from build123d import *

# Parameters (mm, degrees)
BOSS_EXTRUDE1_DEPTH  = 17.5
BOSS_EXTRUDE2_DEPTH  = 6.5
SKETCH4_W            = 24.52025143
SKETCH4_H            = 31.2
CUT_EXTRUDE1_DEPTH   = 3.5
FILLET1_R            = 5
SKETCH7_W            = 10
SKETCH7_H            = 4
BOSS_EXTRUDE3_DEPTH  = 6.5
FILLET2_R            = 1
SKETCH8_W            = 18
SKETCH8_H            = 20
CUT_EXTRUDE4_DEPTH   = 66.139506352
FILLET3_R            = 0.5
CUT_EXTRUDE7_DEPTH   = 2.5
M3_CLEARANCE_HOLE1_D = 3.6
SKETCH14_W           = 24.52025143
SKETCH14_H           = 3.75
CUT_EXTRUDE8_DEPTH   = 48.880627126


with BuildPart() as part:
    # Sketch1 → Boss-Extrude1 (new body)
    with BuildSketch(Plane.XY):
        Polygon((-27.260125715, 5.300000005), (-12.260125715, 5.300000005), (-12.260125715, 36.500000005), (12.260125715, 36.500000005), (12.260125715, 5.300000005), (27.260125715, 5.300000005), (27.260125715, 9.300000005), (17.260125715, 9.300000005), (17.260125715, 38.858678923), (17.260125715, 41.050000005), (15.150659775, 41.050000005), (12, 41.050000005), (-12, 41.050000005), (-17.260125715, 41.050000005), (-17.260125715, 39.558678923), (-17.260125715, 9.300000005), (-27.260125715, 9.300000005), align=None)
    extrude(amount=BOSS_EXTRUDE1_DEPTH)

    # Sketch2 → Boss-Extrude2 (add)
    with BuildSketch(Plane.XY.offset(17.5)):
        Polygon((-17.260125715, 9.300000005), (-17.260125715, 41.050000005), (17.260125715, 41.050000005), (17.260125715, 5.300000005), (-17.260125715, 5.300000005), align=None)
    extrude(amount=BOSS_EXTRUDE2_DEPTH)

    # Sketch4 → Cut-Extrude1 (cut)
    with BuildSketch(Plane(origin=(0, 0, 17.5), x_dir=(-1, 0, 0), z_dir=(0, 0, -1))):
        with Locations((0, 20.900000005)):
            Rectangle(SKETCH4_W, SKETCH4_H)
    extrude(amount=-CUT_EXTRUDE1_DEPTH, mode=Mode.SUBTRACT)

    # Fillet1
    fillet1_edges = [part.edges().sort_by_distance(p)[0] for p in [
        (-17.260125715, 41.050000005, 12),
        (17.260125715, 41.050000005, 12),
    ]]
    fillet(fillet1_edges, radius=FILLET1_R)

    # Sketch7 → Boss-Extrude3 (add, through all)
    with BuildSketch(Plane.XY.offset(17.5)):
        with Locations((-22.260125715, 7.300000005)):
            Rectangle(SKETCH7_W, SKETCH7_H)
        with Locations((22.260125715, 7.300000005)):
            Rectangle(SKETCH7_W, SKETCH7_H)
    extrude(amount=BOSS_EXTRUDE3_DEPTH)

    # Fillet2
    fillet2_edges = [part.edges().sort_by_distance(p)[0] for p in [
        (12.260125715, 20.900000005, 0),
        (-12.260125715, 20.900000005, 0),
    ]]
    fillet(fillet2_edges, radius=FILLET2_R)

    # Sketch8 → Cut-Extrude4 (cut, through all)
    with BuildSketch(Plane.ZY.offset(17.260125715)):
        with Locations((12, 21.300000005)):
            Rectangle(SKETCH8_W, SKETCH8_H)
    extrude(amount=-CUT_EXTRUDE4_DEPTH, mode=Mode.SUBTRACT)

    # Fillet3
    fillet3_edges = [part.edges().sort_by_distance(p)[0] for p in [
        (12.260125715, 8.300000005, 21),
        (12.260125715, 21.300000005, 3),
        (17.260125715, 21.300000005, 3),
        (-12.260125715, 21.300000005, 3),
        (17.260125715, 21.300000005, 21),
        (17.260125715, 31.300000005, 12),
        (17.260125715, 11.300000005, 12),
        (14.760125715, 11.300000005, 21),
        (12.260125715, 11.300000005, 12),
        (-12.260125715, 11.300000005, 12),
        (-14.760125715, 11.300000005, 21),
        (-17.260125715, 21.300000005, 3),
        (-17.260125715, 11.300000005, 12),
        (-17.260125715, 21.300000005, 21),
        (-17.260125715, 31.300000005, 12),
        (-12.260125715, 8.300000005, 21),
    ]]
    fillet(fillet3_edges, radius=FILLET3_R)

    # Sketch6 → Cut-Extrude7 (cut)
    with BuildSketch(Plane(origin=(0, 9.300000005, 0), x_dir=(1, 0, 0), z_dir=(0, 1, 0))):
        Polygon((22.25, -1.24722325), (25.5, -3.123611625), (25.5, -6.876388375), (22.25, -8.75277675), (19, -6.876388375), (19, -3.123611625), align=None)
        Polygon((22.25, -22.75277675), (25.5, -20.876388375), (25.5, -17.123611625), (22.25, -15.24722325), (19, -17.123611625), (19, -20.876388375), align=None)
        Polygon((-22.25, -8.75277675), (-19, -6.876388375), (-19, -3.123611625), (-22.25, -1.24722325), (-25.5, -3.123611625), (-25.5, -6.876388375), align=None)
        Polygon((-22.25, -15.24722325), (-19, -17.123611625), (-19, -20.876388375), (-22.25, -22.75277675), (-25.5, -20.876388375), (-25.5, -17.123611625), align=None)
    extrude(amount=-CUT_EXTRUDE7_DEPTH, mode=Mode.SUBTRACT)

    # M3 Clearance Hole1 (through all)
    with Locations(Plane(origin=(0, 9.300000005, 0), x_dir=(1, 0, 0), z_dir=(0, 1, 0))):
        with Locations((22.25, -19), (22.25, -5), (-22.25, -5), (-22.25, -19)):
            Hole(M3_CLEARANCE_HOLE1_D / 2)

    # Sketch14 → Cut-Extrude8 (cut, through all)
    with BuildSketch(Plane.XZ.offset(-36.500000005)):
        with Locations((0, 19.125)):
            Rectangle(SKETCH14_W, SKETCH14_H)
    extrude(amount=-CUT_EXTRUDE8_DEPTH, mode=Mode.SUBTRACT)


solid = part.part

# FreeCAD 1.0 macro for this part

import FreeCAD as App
import Part
import Sketcher
Q = App.Units.Quantity


def edges_at(feature, points):
    """Names of the edges that pass closest to the given points."""
    edges = feature.Shape.Edges
    near = lambda p: min(range(len(edges)), key=lambda i: edges[i].distToShape(Part.Vertex(*p))[0])
    return sorted({f"Edge{near(p) + 1}" for p in points})

doc = App.newDocument("Part")
params = doc.addObject("Spreadsheet::Sheet", "Params")
for row, (alias, value) in enumerate([
    ("sketch1_width", "15 mm"),
    ("sketch1_width2", "10 mm"),
    ("sketch1_height", "4 mm"),
    ("sketch1_height2", "31.2 mm"),
    ("sketch1_height3", "31.75 mm"),
    ("pad1_length", "17.5 mm"),
    ("sketch2_height", "35.75 mm"),
    ("pad2_length", "6.5 mm"),
    ("sketch3_height", "31.2 mm"),
    ("pocket1_length", "3.5 mm"),
    ("fillet_radius", "5 mm"),
    ("sketch4_width", "10 mm"),
    ("sketch4_height", "4 mm"),
    ("fillet2_radius", "1 mm"),
    ("sketch5_width", "20 mm"),
    ("sketch5_height", "18 mm"),
    ("fillet3_radius", "0.5 mm"),
    ("pocket3_length", "2.5 mm"),
    ("sketch7_diameter", "3.6 mm"),
    ("hole_diameter", "3.6 mm"),
    ("sketch8_height", "3.75 mm"),
], start=1):
    params.set(f"A{row}", alias)
    params.set(f"B{row}", "=" + value)
    params.setAlias(f"B{row}", alias)

body = doc.addObject("PartDesign::Body", "Body")

# Sketch on XY plane
sketch1 = doc.addObject("Sketcher::SketchObject", "Sketch")
body.addObject(sketch1)
sketch1.AttachmentSupport = (doc.XY_Plane, [""])
sketch1.MapMode = "FlatFace"
sketch1.addGeometry([
    Part.LineSegment(App.Vector(-27.3, 5.3, 0), App.Vector(-12.3, 5.3, 0)),  # 0
    Part.LineSegment(App.Vector(-12.3, 5.3, 0), App.Vector(-12.3, 36.5, 0)),  # 1
    Part.LineSegment(App.Vector(-12.3, 36.5, 0), App.Vector(12.3, 36.5, 0)),  # 2
    Part.LineSegment(App.Vector(12.3, 36.5, 0), App.Vector(12.3, 5.3, 0)),  # 3
    Part.LineSegment(App.Vector(12.3, 5.3, 0), App.Vector(27.3, 5.3, 0)),  # 4
    Part.LineSegment(App.Vector(27.3, 5.3, 0), App.Vector(27.3, 9.3, 0)),  # 5
    Part.LineSegment(App.Vector(27.3, 9.3, 0), App.Vector(17.3, 9.3, 0)),  # 6
    Part.LineSegment(App.Vector(17.3, 9.3, 0), App.Vector(17.3, 41.1, 0)),  # 7
    Part.LineSegment(App.Vector(17.3, 41.1, 0), App.Vector(-17.3, 41.1, 0)),  # 8
    Part.LineSegment(App.Vector(-17.3, 41.1, 0), App.Vector(-17.3, 9.3, 0)),  # 9
    Part.LineSegment(App.Vector(-17.3, 9.3, 0), App.Vector(-27.3, 9.3, 0)),  # 10
    Part.LineSegment(App.Vector(-27.3, 9.3, 0), App.Vector(-27.3, 5.3, 0)),  # 11
], False)
sketch1.addConstraint([
    Sketcher.Constraint("Coincident", 0, 2, 1, 1),
    Sketcher.Constraint("Coincident", 1, 2, 2, 1),
    Sketcher.Constraint("Coincident", 2, 2, 3, 1),
    Sketcher.Constraint("Coincident", 3, 2, 4, 1),
    Sketcher.Constraint("Coincident", 4, 2, 5, 1),
    Sketcher.Constraint("Coincident", 5, 2, 6, 1),
    Sketcher.Constraint("Coincident", 6, 2, 7, 1),
    Sketcher.Constraint("Coincident", 7, 2, 8, 1),
    Sketcher.Constraint("Coincident", 8, 2, 9, 1),
    Sketcher.Constraint("Coincident", 9, 2, 10, 1),
    Sketcher.Constraint("Coincident", 10, 2, 11, 1),
    Sketcher.Constraint("Coincident", 11, 2, 0, 1),
    Sketcher.Constraint("Horizontal", 0),
    Sketcher.Constraint("Vertical", 1),
    Sketcher.Constraint("Horizontal", 2),
    Sketcher.Constraint("Vertical", 3),
    Sketcher.Constraint("Horizontal", 4),
    Sketcher.Constraint("Vertical", 5),
    Sketcher.Constraint("Horizontal", 6),
    Sketcher.Constraint("Vertical", 7),
    Sketcher.Constraint("Horizontal", 8),
    Sketcher.Constraint("Vertical", 9),
    Sketcher.Constraint("Horizontal", 10),
    Sketcher.Constraint("Vertical", 11),
    Sketcher.Constraint("Symmetric", 0, 2, 3, 2, -2),
    Sketcher.Constraint("Symmetric", 6, 2, 9, 2, -2),
    Sketcher.Constraint("Equal", 0, 4),
    Sketcher.Constraint("DistanceX", 0, 1, 0, 2, 15.0),
    Sketcher.Constraint("DistanceX", 6, 2, 6, 1, 10.0),
    Sketcher.Constraint("DistanceY", 5, 1, 5, 2, 4.0),
    Sketcher.Constraint("DistanceY", 1, 1, 1, 2, 31.2),
    Sketcher.Constraint("DistanceY", 7, 1, 7, 2, 31.75),
    Sketcher.Constraint("DistanceY", -1, 1, 0, 2, 5.3),
    Sketcher.Constraint("DistanceX", 2, 1, 2, 2, 24.520251),
])
sketch1.setExpression("Constraints[27]", "Params.sketch1_width")
sketch1.setExpression("Constraints[28]", "Params.sketch1_width2")
sketch1.setExpression("Constraints[29]", "Params.sketch1_height")
sketch1.setExpression("Constraints[30]", "Params.sketch1_height2")
sketch1.setExpression("Constraints[31]", "Params.sketch1_height3")
pad1 = doc.addObject("PartDesign::Pad", "Pad")
body.addObject(pad1)
pad1.Profile = sketch1
pad1.setExpression("Length", "Params.pad1_length")

# Sketch on XY plane
sketch2 = doc.addObject("Sketcher::SketchObject", "Sketch001")
body.addObject(sketch2)
sketch2.AttachmentSupport = (doc.XY_Plane, [""])
sketch2.MapMode = "FlatFace"
sketch2.AttachmentOffset = App.Placement(App.Vector(0, 0, 17.5), App.Rotation())
sketch2.addGeometry([
    Part.LineSegment(App.Vector(-17, 41, 0), App.Vector(-17, 5, 0)),
    Part.LineSegment(App.Vector(-17, 5, 0), App.Vector(17, 5, 0)),
    Part.LineSegment(App.Vector(17, 5, 0), App.Vector(17, 41, 0)),
    Part.LineSegment(App.Vector(17, 41, 0), App.Vector(-17, 41, 0)),
], False)
sketch2.addConstraint([
    Sketcher.Constraint("Coincident", 0, 2, 1, 1),
    Sketcher.Constraint("Coincident", 1, 2, 2, 1),
    Sketcher.Constraint("Coincident", 2, 2, 3, 1),
    Sketcher.Constraint("Coincident", 3, 2, 0, 1),
    Sketcher.Constraint("Vertical", 0),
    Sketcher.Constraint("Horizontal", 1),
    Sketcher.Constraint("Vertical", 2),
    Sketcher.Constraint("Horizontal", 3),
    Sketcher.Constraint("DistanceY", 0, 2, 0, 1, 35.75),
    Sketcher.Constraint("DistanceY", -1, 1, 0, 2, 5.3),
    Sketcher.Constraint("DistanceX", 1, 1, 1, 2, 34.520251),
    Sketcher.Constraint("DistanceX", 0, 2, -1, 1, 17.260126),
])
sketch2.setExpression("Constraints[8]", "Params.sketch2_height")
pad2 = doc.addObject("PartDesign::Pad", "Pad001")
body.addObject(pad2)
pad2.Profile = sketch2
pad2.setExpression("Length", "Params.pad2_length")

# Sketch on XY plane
sketch3 = doc.addObject("Sketcher::SketchObject", "Sketch002")
body.addObject(sketch3)
sketch3.AttachmentSupport = (doc.XY_Plane, [""])
sketch3.MapMode = "FlatFace"
sketch3.AttachmentOffset = App.Placement(App.Vector(0, 0, 17.5), App.Rotation())
sketch3.addGeometry([
    Part.LineSegment(App.Vector(12, 37, 0), App.Vector(12, 5, 0)),
    Part.LineSegment(App.Vector(12, 5, 0), App.Vector(-12, 5, 0)),
    Part.LineSegment(App.Vector(-12, 5, 0), App.Vector(-12, 37, 0)),
    Part.LineSegment(App.Vector(-12, 37, 0), App.Vector(12, 37, 0)),
], False)
sketch3.addConstraint([
    Sketcher.Constraint("Coincident", 0, 2, 1, 1),
    Sketcher.Constraint("Coincident", 1, 2, 2, 1),
    Sketcher.Constraint("Coincident", 2, 2, 3, 1),
    Sketcher.Constraint("Coincident", 3, 2, 0, 1),
    Sketcher.Constraint("Vertical", 0),
    Sketcher.Constraint("Horizontal", 1),
    Sketcher.Constraint("Vertical", 2),
    Sketcher.Constraint("Horizontal", 3),
    Sketcher.Constraint("DistanceY", 0, 2, 0, 1, 31.2),
    Sketcher.Constraint("DistanceY", -1, 1, 0, 2, 5.3),
    Sketcher.Constraint("DistanceX", 1, 2, 1, 1, 24.520251),
    Sketcher.Constraint("DistanceX", -1, 1, 0, 2, 12.260126),
])
sketch3.setExpression("Constraints[8]", "Params.sketch3_height")
pocket1 = doc.addObject("PartDesign::Pocket", "Pocket")
body.addObject(pocket1)
pocket1.Profile = sketch3
pocket1.setExpression("Length", "Params.pocket1_length")
pocket1.Reversed = True
doc.recompute()

fillet = doc.addObject("PartDesign::Fillet", "Fillet")
body.addObject(fillet)
fillet.Base = (pocket1, edges_at(pocket1, [(-17.26, 41.05, 12), (17.26, 41.05, 12)]))
fillet.setExpression("Radius", "Params.fillet_radius")

# Sketch on XY plane
sketch4 = doc.addObject("Sketcher::SketchObject", "Sketch003")
body.addObject(sketch4)
sketch4.AttachmentSupport = (doc.XY_Plane, [""])
sketch4.MapMode = "FlatFace"
sketch4.AttachmentOffset = App.Placement(App.Vector(0, 0, 17.5), App.Rotation())
sketch4.addGeometry([
    Part.LineSegment(App.Vector(-27.3, 9.3, 0), App.Vector(-27.3, 5.3, 0)),  # 0
    Part.LineSegment(App.Vector(-27.3, 5.3, 0), App.Vector(-17.3, 5.3, 0)),  # 1
    Part.LineSegment(App.Vector(-17.3, 5.3, 0), App.Vector(-17.3, 9.3, 0)),  # 2
    Part.LineSegment(App.Vector(-17.3, 9.3, 0), App.Vector(-27.3, 9.3, 0)),  # 3
    Part.LineSegment(App.Vector(17.3, 9.3, 0), App.Vector(17.3, 5.3, 0)),  # 4
    Part.LineSegment(App.Vector(17.3, 5.3, 0), App.Vector(27.3, 5.3, 0)),  # 5
    Part.LineSegment(App.Vector(27.3, 5.3, 0), App.Vector(27.3, 9.3, 0)),  # 6
    Part.LineSegment(App.Vector(27.3, 9.3, 0), App.Vector(17.3, 9.3, 0)),  # 7
], False)
sketch4.addConstraint([
    Sketcher.Constraint("Coincident", 0, 2, 1, 1),
    Sketcher.Constraint("Coincident", 1, 2, 2, 1),
    Sketcher.Constraint("Coincident", 2, 2, 3, 1),
    Sketcher.Constraint("Coincident", 3, 2, 0, 1),
    Sketcher.Constraint("Coincident", 4, 2, 5, 1),
    Sketcher.Constraint("Coincident", 5, 2, 6, 1),
    Sketcher.Constraint("Coincident", 6, 2, 7, 1),
    Sketcher.Constraint("Coincident", 7, 2, 4, 1),
    Sketcher.Constraint("Vertical", 0),
    Sketcher.Constraint("Horizontal", 1),
    Sketcher.Constraint("Vertical", 2),
    Sketcher.Constraint("Horizontal", 3),
    Sketcher.Constraint("Vertical", 4),
    Sketcher.Constraint("Horizontal", 5),
    Sketcher.Constraint("Vertical", 6),
    Sketcher.Constraint("Horizontal", 7),
    Sketcher.Constraint("Symmetric", 1, 2, 4, 2, -2),
    Sketcher.Constraint("Symmetric", 3, 2, 6, 2, -2),
    Sketcher.Constraint("DistanceX", 1, 1, 1, 2, 10.0),
    Sketcher.Constraint("DistanceY", 0, 2, 0, 1, 4.0),
    Sketcher.Constraint("DistanceY", -1, 1, 0, 2, 5.3),
    Sketcher.Constraint("DistanceX", 1, 2, 4, 2, 34.520251),
])
sketch4.setExpression("Constraints[18]", "Params.sketch4_width")
sketch4.setExpression("Constraints[19]", "Params.sketch4_height")
pad3 = doc.addObject("PartDesign::Pad", "Pad002")
body.addObject(pad3)
pad3.Profile = sketch4
pad3.Type = "UpToLast"
doc.recompute()

fillet2 = doc.addObject("PartDesign::Fillet", "Fillet001")
body.addObject(fillet2)
fillet2.Base = (pad3, edges_at(pad3, [(12.26, 20.9, 0), (-12.26, 20.9, 0)]))
fillet2.setExpression("Radius", "Params.fillet2_radius")

# Sketch on YZ plane
sketch5 = doc.addObject("Sketcher::SketchObject", "Sketch004")
body.addObject(sketch5)
sketch5.AttachmentSupport = (doc.YZ_Plane, [""])
sketch5.MapMode = "FlatFace"
sketch5.AttachmentOffset = App.Placement(App.Vector(0, 0, -17.260126), App.Rotation())
sketch5.addGeometry([
    Part.LineSegment(App.Vector(31, 3, 0), App.Vector(11, 3, 0)),
    Part.LineSegment(App.Vector(11, 3, 0), App.Vector(11, 21, 0)),
    Part.LineSegment(App.Vector(11, 21, 0), App.Vector(31, 21, 0)),
    Part.LineSegment(App.Vector(31, 21, 0), App.Vector(31, 3, 0)),
], False)
sketch5.addConstraint([
    Sketcher.Constraint("Coincident", 0, 2, 1, 1),
    Sketcher.Constraint("Coincident", 1, 2, 2, 1),
    Sketcher.Constraint("Coincident", 2, 2, 3, 1),
    Sketcher.Constraint("Coincident", 3, 2, 0, 1),
    Sketcher.Constraint("Horizontal", 0),
    Sketcher.Constraint("Vertical", 1),
    Sketcher.Constraint("Horizontal", 2),
    Sketcher.Constraint("Vertical", 3),
    Sketcher.Constraint("DistanceX", 0, 2, 0, 1, 20.0),
    Sketcher.Constraint("DistanceY", 1, 1, 1, 2, 18.0),
    Sketcher.Constraint("DistanceY", -1, 1, 0, 2, 3.0),
    Sketcher.Constraint("DistanceX", -1, 1, 0, 2, 11.3),
])
sketch5.setExpression("Constraints[8]", "Params.sketch5_width")
sketch5.setExpression("Constraints[9]", "Params.sketch5_height")
pocket2 = doc.addObject("PartDesign::Pocket", "Pocket001")
body.addObject(pocket2)
pocket2.Profile = sketch5
pocket2.Type = "ThroughAll"
pocket2.Reversed = True
doc.recompute()

fillet3 = doc.addObject("PartDesign::Fillet", "Fillet002")
body.addObject(fillet3)
fillet3.Base = (pocket2, edges_at(pocket2, [
    (12.26, 8.3, 21),
    (12.26, 21.3, 3),
    (17.26, 21.3, 3),
    (-12.26, 21.3, 3),
    (17.26, 21.3, 21),
    (17.26, 31.3, 12),
    (17.26, 11.3, 12),
    (14.76, 11.3, 21),
    (12.26, 11.3, 12),
    (-12.26, 11.3, 12),
    (-14.76, 11.3, 21),
    (-17.26, 21.3, 3),
    (-17.26, 11.3, 12),
    (-17.26, 21.3, 21),
    (-17.26, 31.3, 12),
    (-12.26, 8.3, 21),
]))
fillet3.setExpression("Radius", "Params.fillet3_radius")

# Sketch on XZ plane
sketch6 = doc.addObject("Sketcher::SketchObject", "Sketch005")
body.addObject(sketch6)
sketch6.AttachmentSupport = (doc.XZ_Plane, [""])
sketch6.MapMode = "FlatFace"
sketch6.AttachmentOffset = App.Placement(App.Vector(0, 0, -9.3), App.Rotation())
sketch6.addGeometry([
    Part.LineSegment(App.Vector(25.5, 3.1, 0), App.Vector(22.2, 1.2, 0)),  # 0
    Part.LineSegment(App.Vector(22.2, 1.2, 0), App.Vector(19, 3.1, 0)),  # 1
    Part.LineSegment(App.Vector(19, 3.1, 0), App.Vector(19, 6.9, 0)),  # 2
    Part.LineSegment(App.Vector(19, 6.9, 0), App.Vector(22.2, 8.8, 0)),  # 3
    Part.LineSegment(App.Vector(22.2, 8.8, 0), App.Vector(25.5, 6.9, 0)),  # 4
    Part.LineSegment(App.Vector(25.5, 6.9, 0), App.Vector(25.5, 3.1, 0)),  # 5
    Part.LineSegment(App.Vector(22.2, 22.8, 0), App.Vector(25.5, 20.9, 0)),  # 6
    Part.LineSegment(App.Vector(25.5, 20.9, 0), App.Vector(25.5, 17.1, 0)),  # 7
    Part.LineSegment(App.Vector(25.5, 17.1, 0), App.Vector(22.2, 15.2, 0)),  # 8
    Part.LineSegment(App.Vector(22.2, 15.2, 0), App.Vector(19, 17.1, 0)),  # 9
    Part.LineSegment(App.Vector(19, 17.1, 0), App.Vector(19, 20.9, 0)),  # 10
    Part.LineSegment(App.Vector(19, 20.9, 0), App.Vector(22.2, 22.8, 0)),  # 11
    Part.LineSegment(App.Vector(-22.2, 8.8, 0), App.Vector(-19, 6.9, 0)),  # 12
    Part.LineSegment(App.Vector(-19, 6.9, 0), App.Vector(-19, 3.1, 0)),  # 13
    Part.LineSegment(App.Vector(-19, 3.1, 0), App.Vector(-22.2, 1.2, 0)),  # 14
    Part.LineSegment(App.Vector(-22.2, 1.2, 0), App.Vector(-25.5, 3.1, 0)),  # 15
    Part.LineSegment(App.Vector(-25.5, 3.1, 0), App.Vector(-25.5, 6.9, 0)),  # 16
    Part.LineSegment(App.Vector(-25.5, 6.9, 0), App.Vector(-22.2, 8.8, 0)),  # 17
    Part.LineSegment(App.Vector(-19, 17.1, 0), App.Vector(-22.2, 15.2, 0)),  # 18
    Part.LineSegment(App.Vector(-22.2, 15.2, 0), App.Vector(-25.5, 17.1, 0)),  # 19
    Part.LineSegment(App.Vector(-25.5, 17.1, 0), App.Vector(-25.5, 20.9, 0)),  # 20
    Part.LineSegment(App.Vector(-25.5, 20.9, 0), App.Vector(-22.2, 22.8, 0)),  # 21
    Part.LineSegment(App.Vector(-22.2, 22.8, 0), App.Vector(-19, 20.9, 0)),  # 22
    Part.LineSegment(App.Vector(-19, 20.9, 0), App.Vector(-19, 17.1, 0)),  # 23
], False)
sketch6.addConstraint([
    Sketcher.Constraint("Coincident", 0, 2, 1, 1),
    Sketcher.Constraint("Coincident", 1, 2, 2, 1),
    Sketcher.Constraint("Coincident", 2, 2, 3, 1),
    Sketcher.Constraint("Coincident", 3, 2, 4, 1),
    Sketcher.Constraint("Coincident", 4, 2, 5, 1),
    Sketcher.Constraint("Coincident", 5, 2, 0, 1),
    Sketcher.Constraint("Coincident", 6, 2, 7, 1),
    Sketcher.Constraint("Coincident", 7, 2, 8, 1),
    Sketcher.Constraint("Coincident", 8, 2, 9, 1),
    Sketcher.Constraint("Coincident", 9, 2, 10, 1),
    Sketcher.Constraint("Coincident", 10, 2, 11, 1),
    Sketcher.Constraint("Coincident", 11, 2, 6, 1),
    Sketcher.Constraint("Coincident", 12, 2, 13, 1),
    Sketcher.Constraint("Coincident", 13, 2, 14, 1),
    Sketcher.Constraint("Coincident", 14, 2, 15, 1),
    Sketcher.Constraint("Coincident", 15, 2, 16, 1),
    Sketcher.Constraint("Coincident", 16, 2, 17, 1),
    Sketcher.Constraint("Coincident", 17, 2, 12, 1),
    Sketcher.Constraint("Coincident", 18, 2, 19, 1),
    Sketcher.Constraint("Coincident", 19, 2, 20, 1),
    Sketcher.Constraint("Coincident", 20, 2, 21, 1),
    Sketcher.Constraint("Coincident", 21, 2, 22, 1),
    Sketcher.Constraint("Coincident", 22, 2, 23, 1),
    Sketcher.Constraint("Coincident", 23, 2, 18, 1),
    Sketcher.Constraint("Vertical", 2),
    Sketcher.Constraint("Vertical", 5),
    Sketcher.Constraint("Vertical", 7),
    Sketcher.Constraint("Vertical", 10),
    Sketcher.Constraint("Vertical", 13),
    Sketcher.Constraint("Vertical", 16),
    Sketcher.Constraint("Vertical", 20),
    Sketcher.Constraint("Vertical", 23),
    Sketcher.Constraint("Symmetric", 2, 2, 12, 2, -2),
    Sketcher.Constraint("Symmetric", 0, 2, 14, 2, -2),
    Sketcher.Constraint("Symmetric", 5, 2, 15, 2, -2),
    Sketcher.Constraint("Symmetric", 3, 2, 17, 2, -2),
    Sketcher.Constraint("Symmetric", 8, 2, 18, 2, -2),
    Sketcher.Constraint("Symmetric", 7, 2, 19, 2, -2),
    Sketcher.Constraint("Symmetric", 11, 2, 21, 2, -2),
    Sketcher.Constraint("Symmetric", 10, 2, 22, 2, -2),
    Sketcher.Constraint("Parallel", 0, 3),
    Sketcher.Constraint("Parallel", 1, 4),
    Sketcher.Constraint("Parallel", 4, 6),
    Sketcher.Constraint("Parallel", 3, 8),
    Sketcher.Constraint("Parallel", 6, 9),
    Sketcher.Constraint("Parallel", 8, 11),
    Sketcher.Constraint("Parallel", 9, 12),
    Sketcher.Constraint("Parallel", 11, 14),
    Sketcher.Constraint("Parallel", 14, 17),
    Sketcher.Constraint("Parallel", 17, 18),
    Sketcher.Constraint("Parallel", 18, 21),
    Sketcher.Constraint("Horizontal", 2, 2, 4, 2),
    Sketcher.Constraint("Horizontal", 1, 2, 5, 2),
    Sketcher.Constraint("Horizontal", 7, 2, 9, 2),
    Sketcher.Constraint("Horizontal", 6, 2, 10, 2),
    Sketcher.Constraint("Vertical", 5, 2, 6, 2),
    Sketcher.Constraint("Vertical", 3, 2, 8, 2),
    Sketcher.Constraint("Equal", 5, 7),
    Sketcher.Constraint("Angle", 0, Q("-150 deg")),
    Sketcher.Constraint("DistanceX", -1, 1, 1, 2, 19.0),
    Sketcher.Constraint("DistanceY", 4, 2, 6, 2, 14.0),
    Sketcher.Constraint("DistanceX", -1, 1, 4, 2, 25.5),
    Sketcher.Constraint("DistanceY", 2, 1, 2, 2, 3.752777),
    Sketcher.Constraint("DistanceY", -1, 1, 1, 2, 3.123612),
])
pocket3 = doc.addObject("PartDesign::Pocket", "Pocket002")
body.addObject(pocket3)
pocket3.Profile = sketch6
pocket3.setExpression("Length", "Params.pocket3_length")
pocket3.Reversed = True

# Sketch on XZ plane
sketch7 = doc.addObject("Sketcher::SketchObject", "Sketch006")
body.addObject(sketch7)
sketch7.AttachmentSupport = (doc.XZ_Plane, [""])
sketch7.MapMode = "FlatFace"
sketch7.AttachmentOffset = App.Placement(App.Vector(0, 0, -9.3), App.Rotation())
sketch7.addGeometry([
    Part.Circle(App.Vector(22.2, 19, 0), App.Vector(0, 0, 1), 1.8),
    Part.Circle(App.Vector(22.2, 5, 0), App.Vector(0, 0, 1), 1.8),
    Part.Circle(App.Vector(-22.2, 5, 0), App.Vector(0, 0, 1), 1.8),
    Part.Circle(App.Vector(-22.2, 19, 0), App.Vector(0, 0, 1), 1.8),
], False)
sketch7.addConstraint([
    Sketcher.Constraint("Equal", 0, 1),
    Sketcher.Constraint("Equal", 1, 2),
    Sketcher.Constraint("Equal", 2, 3),
    Sketcher.Constraint("Symmetric", 1, 3, 2, 3, -2),
    Sketcher.Constraint("Symmetric", 0, 3, 3, 3, -2),
    Sketcher.Constraint("Vertical", 0, 3, 1, 3),
    Sketcher.Constraint("Diameter", 0, 3.6),
    Sketcher.Constraint("DistanceY", -1, 1, 0, 3, 19.0),
    Sketcher.Constraint("DistanceY", -1, 1, 1, 3, 5.0),
    Sketcher.Constraint("DistanceX", 2, 3, 1, 3, 44.5),
])
sketch7.setExpression("Constraints[6]", "Params.sketch7_diameter")
doc.recompute()
hole = doc.addObject("PartDesign::Hole", "Hole")
body.addObject(hole)
hole.Profile = sketch7
hole.ThreadType = "None"
hole.setExpression("Diameter", "Params.hole_diameter")
hole.DepthType = "ThroughAll"
hole.Reversed = True

# Sketch on XZ plane
sketch8 = doc.addObject("Sketcher::SketchObject", "Sketch007")
body.addObject(sketch8)
sketch8.AttachmentSupport = (doc.XZ_Plane, [""])
sketch8.MapMode = "FlatFace"
sketch8.AttachmentOffset = App.Placement(App.Vector(0, 0, -36.5), App.Rotation())
sketch8.addGeometry([
    Part.LineSegment(App.Vector(-12.3, 21, 0), App.Vector(-12.3, 17.2, 0)),
    Part.LineSegment(App.Vector(-12.3, 17.2, 0), App.Vector(12.3, 17.2, 0)),
    Part.LineSegment(App.Vector(12.3, 17.2, 0), App.Vector(12.3, 21, 0)),
    Part.LineSegment(App.Vector(12.3, 21, 0), App.Vector(-12.3, 21, 0)),
], False)
sketch8.addConstraint([
    Sketcher.Constraint("Coincident", 0, 2, 1, 1),
    Sketcher.Constraint("Coincident", 1, 2, 2, 1),
    Sketcher.Constraint("Coincident", 2, 2, 3, 1),
    Sketcher.Constraint("Coincident", 3, 2, 0, 1),
    Sketcher.Constraint("Vertical", 0),
    Sketcher.Constraint("Horizontal", 1),
    Sketcher.Constraint("Vertical", 2),
    Sketcher.Constraint("Horizontal", 3),
    Sketcher.Constraint("DistanceY", -1, 1, 2, 2, 21.0),
    Sketcher.Constraint("DistanceY", 0, 2, 0, 1, 3.75),
    Sketcher.Constraint("DistanceX", 1, 1, 1, 2, 24.520251),
    Sketcher.Constraint("DistanceX", 0, 2, -1, 1, 12.260126),
])
sketch8.setExpression("Constraints[9]", "Params.sketch8_height")
pocket4 = doc.addObject("PartDesign::Pocket", "Pocket003")
body.addObject(pocket4)
pocket4.Profile = sketch8
pocket4.Type = "ThroughAll"

doc.recompute()
